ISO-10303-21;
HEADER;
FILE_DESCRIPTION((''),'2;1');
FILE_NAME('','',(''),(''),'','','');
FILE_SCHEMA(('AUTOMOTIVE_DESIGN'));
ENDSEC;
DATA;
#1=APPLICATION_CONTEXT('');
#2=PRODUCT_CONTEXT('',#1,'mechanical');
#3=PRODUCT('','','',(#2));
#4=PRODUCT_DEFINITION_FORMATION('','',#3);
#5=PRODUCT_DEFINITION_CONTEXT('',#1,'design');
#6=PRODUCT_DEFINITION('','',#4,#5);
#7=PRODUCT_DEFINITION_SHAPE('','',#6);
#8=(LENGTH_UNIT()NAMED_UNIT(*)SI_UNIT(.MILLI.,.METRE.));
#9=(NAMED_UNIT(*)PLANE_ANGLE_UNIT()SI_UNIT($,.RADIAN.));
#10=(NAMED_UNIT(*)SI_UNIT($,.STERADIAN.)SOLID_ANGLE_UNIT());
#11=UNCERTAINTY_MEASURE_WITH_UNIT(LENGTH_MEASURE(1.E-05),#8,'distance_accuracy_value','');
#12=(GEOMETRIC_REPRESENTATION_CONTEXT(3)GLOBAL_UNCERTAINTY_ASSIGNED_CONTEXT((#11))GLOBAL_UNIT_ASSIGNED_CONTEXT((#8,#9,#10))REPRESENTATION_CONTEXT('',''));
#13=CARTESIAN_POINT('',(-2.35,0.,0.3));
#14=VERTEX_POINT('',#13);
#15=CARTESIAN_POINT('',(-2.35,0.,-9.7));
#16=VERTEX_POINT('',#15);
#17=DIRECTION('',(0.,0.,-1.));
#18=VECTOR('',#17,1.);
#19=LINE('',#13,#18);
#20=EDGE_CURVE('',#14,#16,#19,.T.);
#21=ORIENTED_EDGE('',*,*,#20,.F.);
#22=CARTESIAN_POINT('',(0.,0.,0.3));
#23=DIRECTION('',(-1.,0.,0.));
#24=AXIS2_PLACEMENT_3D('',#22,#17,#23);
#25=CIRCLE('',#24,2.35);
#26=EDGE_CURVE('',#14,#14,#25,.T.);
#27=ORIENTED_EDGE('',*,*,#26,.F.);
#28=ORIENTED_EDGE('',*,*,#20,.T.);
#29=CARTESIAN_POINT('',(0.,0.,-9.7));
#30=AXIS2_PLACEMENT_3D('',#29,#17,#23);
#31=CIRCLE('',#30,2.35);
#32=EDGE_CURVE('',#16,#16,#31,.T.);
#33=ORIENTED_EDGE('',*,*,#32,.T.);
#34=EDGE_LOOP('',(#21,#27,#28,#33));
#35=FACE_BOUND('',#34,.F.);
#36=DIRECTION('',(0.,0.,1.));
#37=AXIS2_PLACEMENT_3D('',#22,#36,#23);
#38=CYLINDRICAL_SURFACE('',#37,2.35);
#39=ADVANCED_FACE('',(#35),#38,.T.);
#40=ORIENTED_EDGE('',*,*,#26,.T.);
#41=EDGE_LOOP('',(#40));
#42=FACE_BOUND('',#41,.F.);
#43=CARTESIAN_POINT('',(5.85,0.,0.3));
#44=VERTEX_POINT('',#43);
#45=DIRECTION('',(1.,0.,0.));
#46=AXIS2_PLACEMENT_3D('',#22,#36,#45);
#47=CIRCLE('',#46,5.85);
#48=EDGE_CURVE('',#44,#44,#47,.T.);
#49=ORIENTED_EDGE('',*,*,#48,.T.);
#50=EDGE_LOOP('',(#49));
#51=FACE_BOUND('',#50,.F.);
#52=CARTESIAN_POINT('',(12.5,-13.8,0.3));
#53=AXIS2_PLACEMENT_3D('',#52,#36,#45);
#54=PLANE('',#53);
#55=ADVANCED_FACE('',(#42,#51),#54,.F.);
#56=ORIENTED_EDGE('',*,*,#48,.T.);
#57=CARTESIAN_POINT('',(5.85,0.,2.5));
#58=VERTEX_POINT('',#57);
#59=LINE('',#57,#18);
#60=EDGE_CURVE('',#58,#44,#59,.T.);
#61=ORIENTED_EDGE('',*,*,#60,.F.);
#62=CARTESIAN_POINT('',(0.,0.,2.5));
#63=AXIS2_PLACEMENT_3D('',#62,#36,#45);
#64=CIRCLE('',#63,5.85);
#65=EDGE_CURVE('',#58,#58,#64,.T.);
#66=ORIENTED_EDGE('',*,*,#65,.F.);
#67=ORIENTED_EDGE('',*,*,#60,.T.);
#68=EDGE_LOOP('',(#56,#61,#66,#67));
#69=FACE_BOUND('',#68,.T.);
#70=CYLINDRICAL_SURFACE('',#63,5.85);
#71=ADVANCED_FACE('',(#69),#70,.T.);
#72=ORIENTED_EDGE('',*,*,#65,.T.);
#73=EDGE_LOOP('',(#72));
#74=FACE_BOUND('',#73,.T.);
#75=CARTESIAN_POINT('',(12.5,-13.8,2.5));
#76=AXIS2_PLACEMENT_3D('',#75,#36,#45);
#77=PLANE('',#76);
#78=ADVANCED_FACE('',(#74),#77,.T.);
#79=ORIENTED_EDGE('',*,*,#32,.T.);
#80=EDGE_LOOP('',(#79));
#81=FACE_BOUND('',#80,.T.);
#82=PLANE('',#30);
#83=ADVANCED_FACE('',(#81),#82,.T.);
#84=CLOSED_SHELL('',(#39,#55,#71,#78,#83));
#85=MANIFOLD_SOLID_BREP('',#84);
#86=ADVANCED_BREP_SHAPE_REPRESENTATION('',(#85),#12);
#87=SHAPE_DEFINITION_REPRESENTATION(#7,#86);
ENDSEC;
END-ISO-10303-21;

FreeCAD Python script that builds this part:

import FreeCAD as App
import Part
import Sketcher

doc = App.newDocument("Part")
body = doc.addObject("PartDesign::Body", "Body")

sketch1 = body.newObject("Sketcher::SketchObject", "Sketch")
sketch1.AttachmentSupport = (doc.getObject("XY_Plane"), [""])
sketch1.MapMode = "FlatFace"
sketch1.AttachmentOffset = App.Placement(App.Vector(0, 0, 2.5), App.Rotation())
sketch1.addGeometry(Part.Circle(App.Vector(0, 0, 0), App.Vector(0, 0, 1), 6), False)
sketch1.addConstraint(Sketcher.Constraint("Coincident", 0, 3, -1, 1))
sketch1.addConstraint(Sketcher.Constraint("Diameter", 0, 11.7))
pad1 = body.newObject("PartDesign::Pad", "Pad")
pad1.Profile = sketch1
pad1.Length = 2.2
pad1.Reversed = True

sketch2 = body.newObject("Sketcher::SketchObject", "Sketch001")
sketch2.AttachmentSupport = (doc.getObject("XY_Plane"), [""])
sketch2.MapMode = "FlatFace"
sketch2.AttachmentOffset = App.Placement(App.Vector(0, 0, 0.3), App.Rotation())
sketch2.addGeometry(Part.Circle(App.Vector(0, 0, 0), App.Vector(0, 0, 1), 2.4), False)
sketch2.addConstraint(Sketcher.Constraint("Coincident", 0, 3, -1, 1))
sketch2.addConstraint(Sketcher.Constraint("Diameter", 0, 4.7))
pad2 = body.newObject("PartDesign::Pad", "Pad001")
pad2.Profile = sketch2
pad2.Length = 10
pad2.Reversed = True

doc.recompute()
